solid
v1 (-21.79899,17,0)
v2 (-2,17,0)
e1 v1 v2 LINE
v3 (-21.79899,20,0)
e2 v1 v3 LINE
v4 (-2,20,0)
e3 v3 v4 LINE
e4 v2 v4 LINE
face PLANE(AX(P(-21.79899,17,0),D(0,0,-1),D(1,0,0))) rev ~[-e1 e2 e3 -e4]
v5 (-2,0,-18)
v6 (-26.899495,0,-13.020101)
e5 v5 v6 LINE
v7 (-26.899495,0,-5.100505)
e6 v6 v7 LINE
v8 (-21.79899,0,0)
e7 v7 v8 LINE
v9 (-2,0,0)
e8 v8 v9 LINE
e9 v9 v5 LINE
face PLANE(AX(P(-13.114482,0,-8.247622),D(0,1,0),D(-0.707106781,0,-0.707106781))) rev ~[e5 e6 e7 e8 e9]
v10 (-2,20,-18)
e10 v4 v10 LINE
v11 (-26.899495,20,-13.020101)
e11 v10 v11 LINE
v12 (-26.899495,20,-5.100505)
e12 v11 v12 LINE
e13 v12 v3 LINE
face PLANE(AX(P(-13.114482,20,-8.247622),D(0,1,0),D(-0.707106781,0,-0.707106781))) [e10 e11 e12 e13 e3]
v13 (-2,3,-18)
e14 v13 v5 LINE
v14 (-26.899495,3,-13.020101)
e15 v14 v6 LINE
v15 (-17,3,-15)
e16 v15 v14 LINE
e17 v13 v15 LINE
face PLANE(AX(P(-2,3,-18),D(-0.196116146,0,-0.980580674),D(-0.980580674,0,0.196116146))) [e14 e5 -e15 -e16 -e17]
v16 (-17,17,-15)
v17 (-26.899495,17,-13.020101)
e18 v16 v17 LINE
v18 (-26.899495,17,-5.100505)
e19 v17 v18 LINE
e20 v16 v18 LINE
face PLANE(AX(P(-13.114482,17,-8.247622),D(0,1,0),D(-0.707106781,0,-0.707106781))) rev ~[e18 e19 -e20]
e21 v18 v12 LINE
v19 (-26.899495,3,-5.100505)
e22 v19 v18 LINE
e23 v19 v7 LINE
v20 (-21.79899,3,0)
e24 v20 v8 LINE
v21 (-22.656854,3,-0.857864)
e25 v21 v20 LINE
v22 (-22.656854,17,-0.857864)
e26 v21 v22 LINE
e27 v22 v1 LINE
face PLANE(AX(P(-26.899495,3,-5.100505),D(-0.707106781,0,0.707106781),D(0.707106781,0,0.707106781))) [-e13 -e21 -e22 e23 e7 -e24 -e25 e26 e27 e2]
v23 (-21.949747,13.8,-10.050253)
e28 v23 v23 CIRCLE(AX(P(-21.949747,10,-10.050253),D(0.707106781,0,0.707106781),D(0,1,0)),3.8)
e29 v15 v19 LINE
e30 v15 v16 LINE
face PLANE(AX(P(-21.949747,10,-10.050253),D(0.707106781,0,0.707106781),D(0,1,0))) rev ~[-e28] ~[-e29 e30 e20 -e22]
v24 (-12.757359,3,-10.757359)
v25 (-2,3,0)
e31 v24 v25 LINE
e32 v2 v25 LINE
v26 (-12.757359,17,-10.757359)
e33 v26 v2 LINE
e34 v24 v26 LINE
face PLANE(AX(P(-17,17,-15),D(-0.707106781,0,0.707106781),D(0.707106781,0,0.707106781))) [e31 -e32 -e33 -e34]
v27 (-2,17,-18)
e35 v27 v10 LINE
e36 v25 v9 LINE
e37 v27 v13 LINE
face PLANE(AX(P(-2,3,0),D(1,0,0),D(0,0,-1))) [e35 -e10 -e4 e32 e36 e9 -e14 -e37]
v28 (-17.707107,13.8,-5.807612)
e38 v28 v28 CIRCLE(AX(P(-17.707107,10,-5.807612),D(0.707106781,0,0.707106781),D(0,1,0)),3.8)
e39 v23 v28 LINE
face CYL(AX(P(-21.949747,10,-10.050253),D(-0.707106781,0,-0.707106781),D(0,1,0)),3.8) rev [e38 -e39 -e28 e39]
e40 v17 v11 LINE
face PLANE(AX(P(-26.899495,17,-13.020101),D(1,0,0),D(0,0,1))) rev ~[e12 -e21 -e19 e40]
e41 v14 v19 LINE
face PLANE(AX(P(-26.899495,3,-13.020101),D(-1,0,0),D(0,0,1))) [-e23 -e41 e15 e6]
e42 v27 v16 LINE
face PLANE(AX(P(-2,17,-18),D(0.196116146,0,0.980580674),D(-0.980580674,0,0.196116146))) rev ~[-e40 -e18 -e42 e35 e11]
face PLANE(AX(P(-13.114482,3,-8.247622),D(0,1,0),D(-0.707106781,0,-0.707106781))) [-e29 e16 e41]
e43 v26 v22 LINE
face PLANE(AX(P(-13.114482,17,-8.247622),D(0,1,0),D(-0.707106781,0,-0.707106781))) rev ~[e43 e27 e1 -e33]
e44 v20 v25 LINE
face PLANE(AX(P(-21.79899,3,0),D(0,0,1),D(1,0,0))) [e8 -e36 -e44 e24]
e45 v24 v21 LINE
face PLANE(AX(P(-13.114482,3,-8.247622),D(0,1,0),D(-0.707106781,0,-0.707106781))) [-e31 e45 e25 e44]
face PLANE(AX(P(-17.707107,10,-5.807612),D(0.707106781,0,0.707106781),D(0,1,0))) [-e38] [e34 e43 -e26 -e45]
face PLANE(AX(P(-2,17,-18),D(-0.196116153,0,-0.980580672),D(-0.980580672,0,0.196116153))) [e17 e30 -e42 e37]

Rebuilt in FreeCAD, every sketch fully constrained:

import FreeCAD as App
import Part
import Sketcher

V = App.Vector
Q = App.Units.Quantity

doc = App.newDocument("Part")
params = doc.addObject("Spreadsheet::Sheet", "Params")
for row, (alias, value) in enumerate([
    ("sketch1_diameter", "7.6 mm"),
    ("sketch1_width", "14 mm"),
    ("pad1_length", "6 mm"),
    ("sketch2_length", "18 mm"),
    ("pad2_length", "14 mm"),
    ("sketch3_length", "18 mm"),
    ("pad3_length", "3 mm"),
    ("sketch4_length", "18 mm"),
    ("pad4_length", "3 mm"),
], start=1):
    params.set(f"A{row}", alias)
    params.set(f"B{row}", "=" + value)
    params.setAlias(f"B{row}", alias)

body = doc.addObject("PartDesign::Body", "Body")

sketch1 = doc.addObject("Sketcher::SketchObject", "Sketch")
body.addObject(sketch1)
sketch1.AttachmentSupport = (doc.YZ_Plane, [""])
sketch1.MapMode = "FlatFace"
sketch1.addGeometry([
    Part.LineSegment(V(-19, 14, 0), V(-19, 0, 0)),
    Part.LineSegment(V(-19, 0, 0), V(-5, 0, 0)),
    Part.LineSegment(V(-5, 0, 0), V(-5, 14, 0)),
    Part.LineSegment(V(-5, 14, 0), V(-19, 14, 0)),
    Part.Circle(V(-12, 7, 0), V(0, 0, 1), 3.8),
], False)
sketch1.addConstraint([
    Sketcher.Constraint("Coincident", 0, 2, 1, 1),
    Sketcher.Constraint("Coincident", 1, 2, 2, 1),
    Sketcher.Constraint("Coincident", 2, 2, 3, 1),
    Sketcher.Constraint("Coincident", 3, 2, 0, 1),
    Sketcher.Constraint("Vertical", 0),
    Sketcher.Constraint("Horizontal", 1),
    Sketcher.Constraint("Vertical", 2),
    Sketcher.Constraint("Horizontal", 3),
    Sketcher.Constraint("PointOnObject", 0, 2, -1),
    Sketcher.Constraint("Equal", 3, 0),
    Sketcher.Constraint("Diameter", 4, Q("7.6 mm")),
    Sketcher.Constraint("DistanceX", 1, 1, 1, 2, Q("14 mm")),
    Sketcher.Constraint("DistanceX", 4, 3, -1, 1, Q("12 mm")),
    Sketcher.Constraint("DistanceY", -1, 1, 4, 3, Q("7 mm")),
    Sketcher.Constraint("DistanceX", 0, 2, -1, 1, Q("19 mm")),
])
sketch1.setExpression("Constraints[10]", "Params.sketch1_diameter")
sketch1.setExpression("Constraints[11]", "Params.sketch1_width")
pad1 = doc.addObject("PartDesign::Pad", "Pad")
body.addObject(pad1)
pad1.Profile = sketch1
pad1.setExpression("Length", "Params.pad1_length")

sketch2 = doc.addObject("Sketcher::SketchObject", "Sketch001")
body.addObject(sketch2)
sketch2.AttachmentSupport = (doc.XZ_Plane, [""])
sketch2.MapMode = "FlatFace"
sketch2.AttachmentOffset = App.Placement(V(0, 0, 5), App.Rotation())
sketch2.addGeometry([
    Part.LineSegment(V(21, 0, 0), V(0, 0, 0)),
    Part.LineSegment(V(0, 0, 0), V(8, -13, 0)),
    Part.LineSegment(V(8, -13, 0), V(21, 0, 0)),
], False)
sketch2.addConstraint([
    Sketcher.Constraint("Coincident", 0, 2, 1, 1),
    Sketcher.Constraint("Coincident", 1, 2, 2, 1),
    Sketcher.Constraint("Coincident", 2, 2, 0, 1),
    Sketcher.Constraint("Horizontal", 0),
    Sketcher.Constraint("Coincident", 0, 2, -1, 1),
    Sketcher.Constraint("Angle", 2, Q("45 deg")),
    Sketcher.Constraint("Distance", 2, Q("18 mm")),
    Sketcher.Constraint("Distance", 1, Q("15.297058 mm")),
])
sketch2.setExpression("Constraints[6]", "Params.sketch2_length")
pad2 = doc.addObject("PartDesign::Pad", "Pad001")
body.addObject(pad2)
pad2.Profile = sketch2
pad2.setExpression("Length", "Params.pad2_length")

sketch3 = doc.addObject("Sketcher::SketchObject", "Sketch002")
body.addObject(sketch3)
sketch3.AttachmentSupport = (doc.XZ_Plane, [""])
sketch3.MapMode = "FlatFace"
sketch3.AttachmentOffset = App.Placement(V(0, 0, 5), App.Rotation())
sketch3.addGeometry([
    Part.LineSegment(V(7, 14, 0), V(0, 14, 0)),
    Part.LineSegment(V(0, 14, 0), V(-6, 8, 0)),
    Part.LineSegment(V(-6, 8, 0), V(8, -13, 0)),
    Part.LineSegment(V(8, -13, 0), V(21, 0, 0)),
    Part.LineSegment(V(21, 0, 0), V(7, 14, 0)),
], False)
sketch3.addConstraint([
    Sketcher.Constraint("Coincident", 0, 2, 1, 1),
    Sketcher.Constraint("Coincident", 1, 2, 2, 1),
    Sketcher.Constraint("Coincident", 2, 2, 3, 1),
    Sketcher.Constraint("Coincident", 3, 2, 4, 1),
    Sketcher.Constraint("Coincident", 4, 2, 0, 1),
    Sketcher.Constraint("Horizontal", 0),
    Sketcher.Constraint("PointOnObject", 0, 2, -2),
    Sketcher.Constraint("PointOnObject", 3, 2, -1),
    Sketcher.Constraint("Parallel", 1, 3),
    Sketcher.Constraint("Perpendicular", 3, 4),
    Sketcher.Constraint("Angle", 1, Q("-135 deg")),
    Sketcher.Constraint("Distance", 3, Q("18 mm")),
    Sketcher.Constraint("DistanceY", -1, 1, 0, 2, Q("14 mm")),
    Sketcher.Constraint("DistanceX", 1, 2, -1, 1, Q("5.6 mm")),
    Sketcher.Constraint("Distance", 2, Q("25.392602 mm")),
])
sketch3.setExpression("Constraints[11]", "Params.sketch3_length")
pad3 = doc.addObject("PartDesign::Pad", "Pad002")
body.addObject(pad3)
pad3.Profile = sketch3
pad3.setExpression("Length", "Params.pad3_length")
pad3.Reversed = True

sketch4 = doc.addObject("Sketcher::SketchObject", "Sketch003")
body.addObject(sketch4)
sketch4.AttachmentSupport = (doc.XZ_Plane, [""])
sketch4.MapMode = "FlatFace"
sketch4.AttachmentOffset = App.Placement(V(0, 0, 19), App.Rotation())
sketch4.addGeometry([
    Part.LineSegment(V(7, 14, 0), V(0, 14, 0)),
    Part.LineSegment(V(0, 14, 0), V(-6, 8, 0)),
    Part.LineSegment(V(-6, 8, 0), V(8, -13, 0)),
    Part.LineSegment(V(8, -13, 0), V(21, 0, 0)),
    Part.LineSegment(V(21, 0, 0), V(7, 14, 0)),
], False)
sketch4.addConstraint([
    Sketcher.Constraint("Coincident", 0, 2, 1, 1),
    Sketcher.Constraint("Coincident", 1, 2, 2, 1),
    Sketcher.Constraint("Coincident", 2, 2, 3, 1),
    Sketcher.Constraint("Coincident", 3, 2, 4, 1),
    Sketcher.Constraint("Coincident", 4, 2, 0, 1),
    Sketcher.Constraint("Horizontal", 0),
    Sketcher.Constraint("PointOnObject", 0, 2, -2),
    Sketcher.Constraint("PointOnObject", 3, 2, -1),
    Sketcher.Constraint("Parallel", 1, 3),
    Sketcher.Constraint("Perpendicular", 3, 4),
    Sketcher.Constraint("Angle", 1, Q("-135 deg")),
    Sketcher.Constraint("Distance", 3, Q("18 mm")),
    Sketcher.Constraint("DistanceY", -1, 1, 0, 2, Q("14 mm")),
    Sketcher.Constraint("DistanceX", 1, 2, -1, 1, Q("5.6 mm")),
    Sketcher.Constraint("Distance", 2, Q("25.392602 mm")),
])
sketch4.setExpression("Constraints[11]", "Params.sketch4_length")
pad4 = doc.addObject("PartDesign::Pad", "Pad003")
body.addObject(pad4)
pad4.Profile = sketch4
pad4.setExpression("Length", "Params.pad4_length")
body2 = doc.addObject("PartDesign::Body", "Body001")
doc.recompute()

body.Placement = App.Placement(V(-17, 22, -15), App.Rotation(V(0, 1, 0), 315))
boolean = doc.addObject("PartDesign::Boolean", "Boolean")
body2.addObject(boolean)
boolean.Type = "Fuse"
boolean.addObjects([body])

doc.recompute()
